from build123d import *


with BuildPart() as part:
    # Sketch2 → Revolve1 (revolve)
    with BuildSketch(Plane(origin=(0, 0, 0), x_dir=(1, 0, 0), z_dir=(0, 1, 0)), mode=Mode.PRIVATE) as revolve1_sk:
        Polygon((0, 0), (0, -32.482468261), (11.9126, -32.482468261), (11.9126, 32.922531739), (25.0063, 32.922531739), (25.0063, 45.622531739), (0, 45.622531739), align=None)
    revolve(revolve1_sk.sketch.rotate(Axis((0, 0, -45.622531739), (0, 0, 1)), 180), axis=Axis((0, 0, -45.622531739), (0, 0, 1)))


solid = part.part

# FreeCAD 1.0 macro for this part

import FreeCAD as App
import Part
import Sketcher
from FreeCAD import Vector
Q = App.Units.Quantity

doc = App.newDocument("Part")
body = doc.addObject("PartDesign::Body", "Body")

# Sketch on XZ plane
sketch1 = body.newObject("Sketcher::SketchObject", "Sketch")
sketch1.AttachmentSupport = (doc.getObject("XZ_Plane"), [""])
sketch1.MapMode = "FlatFace"
sketch1.addGeometry([
    Part.LineSegment(Vector(0, 32, 0), Vector(12, 32, 0)),  # 0
    Part.LineSegment(Vector(12, 32, 0), Vector(12, -33, 0)),  # 1
    Part.LineSegment(Vector(12, -33, 0), Vector(25, -33, 0)),  # 2
    Part.LineSegment(Vector(25, -33, 0), Vector(25, -46, 0)),  # 3
    Part.LineSegment(Vector(25, -46, 0), Vector(0, -46, 0)),  # 4
    Part.LineSegment(Vector(0, -46, 0), Vector(0, 32, 0)),  # 5
], False)
sketch1.addConstraint([
    Sketcher.Constraint("Coincident", 0, 2, 1, 1),
    Sketcher.Constraint("Coincident", 1, 2, 2, 1),
    Sketcher.Constraint("Coincident", 2, 2, 3, 1),
    Sketcher.Constraint("Coincident", 3, 2, 4, 1),
    Sketcher.Constraint("Coincident", 4, 2, 5, 1),
    Sketcher.Constraint("Coincident", 5, 2, 0, 1),
    Sketcher.Constraint("Horizontal", 0),
    Sketcher.Constraint("Vertical", 1),
    Sketcher.Constraint("Horizontal", 2),
    Sketcher.Constraint("Vertical", 3),
    Sketcher.Constraint("Horizontal", 4),
    Sketcher.Constraint("Vertical", 5),
    Sketcher.Constraint("PointOnObject", 4, 2, -2),
    Sketcher.Constraint("DistanceY", 3, 2, 3, 1, Q("0.5 in")),
    Sketcher.Constraint("DistanceX", 0, 1, 0, 2, Q("0.469 in")),
    Sketcher.Constraint("DistanceY", 1, 2, 1, 1, Q("2.575 in")),
    Sketcher.Constraint("DistanceX", 2, 1, 2, 2, Q("0.5155 in")),
    Sketcher.Constraint("DistanceY", -1, 1, 0, 2, Q("32.482468 mm")),
])
revolution = body.newObject("PartDesign::Revolution", "Revolution")
revolution.Profile = sketch1
revolution.ReferenceAxis = (sketch1, ["V_Axis"])
revolution.Angle = 360

doc.recompute()
